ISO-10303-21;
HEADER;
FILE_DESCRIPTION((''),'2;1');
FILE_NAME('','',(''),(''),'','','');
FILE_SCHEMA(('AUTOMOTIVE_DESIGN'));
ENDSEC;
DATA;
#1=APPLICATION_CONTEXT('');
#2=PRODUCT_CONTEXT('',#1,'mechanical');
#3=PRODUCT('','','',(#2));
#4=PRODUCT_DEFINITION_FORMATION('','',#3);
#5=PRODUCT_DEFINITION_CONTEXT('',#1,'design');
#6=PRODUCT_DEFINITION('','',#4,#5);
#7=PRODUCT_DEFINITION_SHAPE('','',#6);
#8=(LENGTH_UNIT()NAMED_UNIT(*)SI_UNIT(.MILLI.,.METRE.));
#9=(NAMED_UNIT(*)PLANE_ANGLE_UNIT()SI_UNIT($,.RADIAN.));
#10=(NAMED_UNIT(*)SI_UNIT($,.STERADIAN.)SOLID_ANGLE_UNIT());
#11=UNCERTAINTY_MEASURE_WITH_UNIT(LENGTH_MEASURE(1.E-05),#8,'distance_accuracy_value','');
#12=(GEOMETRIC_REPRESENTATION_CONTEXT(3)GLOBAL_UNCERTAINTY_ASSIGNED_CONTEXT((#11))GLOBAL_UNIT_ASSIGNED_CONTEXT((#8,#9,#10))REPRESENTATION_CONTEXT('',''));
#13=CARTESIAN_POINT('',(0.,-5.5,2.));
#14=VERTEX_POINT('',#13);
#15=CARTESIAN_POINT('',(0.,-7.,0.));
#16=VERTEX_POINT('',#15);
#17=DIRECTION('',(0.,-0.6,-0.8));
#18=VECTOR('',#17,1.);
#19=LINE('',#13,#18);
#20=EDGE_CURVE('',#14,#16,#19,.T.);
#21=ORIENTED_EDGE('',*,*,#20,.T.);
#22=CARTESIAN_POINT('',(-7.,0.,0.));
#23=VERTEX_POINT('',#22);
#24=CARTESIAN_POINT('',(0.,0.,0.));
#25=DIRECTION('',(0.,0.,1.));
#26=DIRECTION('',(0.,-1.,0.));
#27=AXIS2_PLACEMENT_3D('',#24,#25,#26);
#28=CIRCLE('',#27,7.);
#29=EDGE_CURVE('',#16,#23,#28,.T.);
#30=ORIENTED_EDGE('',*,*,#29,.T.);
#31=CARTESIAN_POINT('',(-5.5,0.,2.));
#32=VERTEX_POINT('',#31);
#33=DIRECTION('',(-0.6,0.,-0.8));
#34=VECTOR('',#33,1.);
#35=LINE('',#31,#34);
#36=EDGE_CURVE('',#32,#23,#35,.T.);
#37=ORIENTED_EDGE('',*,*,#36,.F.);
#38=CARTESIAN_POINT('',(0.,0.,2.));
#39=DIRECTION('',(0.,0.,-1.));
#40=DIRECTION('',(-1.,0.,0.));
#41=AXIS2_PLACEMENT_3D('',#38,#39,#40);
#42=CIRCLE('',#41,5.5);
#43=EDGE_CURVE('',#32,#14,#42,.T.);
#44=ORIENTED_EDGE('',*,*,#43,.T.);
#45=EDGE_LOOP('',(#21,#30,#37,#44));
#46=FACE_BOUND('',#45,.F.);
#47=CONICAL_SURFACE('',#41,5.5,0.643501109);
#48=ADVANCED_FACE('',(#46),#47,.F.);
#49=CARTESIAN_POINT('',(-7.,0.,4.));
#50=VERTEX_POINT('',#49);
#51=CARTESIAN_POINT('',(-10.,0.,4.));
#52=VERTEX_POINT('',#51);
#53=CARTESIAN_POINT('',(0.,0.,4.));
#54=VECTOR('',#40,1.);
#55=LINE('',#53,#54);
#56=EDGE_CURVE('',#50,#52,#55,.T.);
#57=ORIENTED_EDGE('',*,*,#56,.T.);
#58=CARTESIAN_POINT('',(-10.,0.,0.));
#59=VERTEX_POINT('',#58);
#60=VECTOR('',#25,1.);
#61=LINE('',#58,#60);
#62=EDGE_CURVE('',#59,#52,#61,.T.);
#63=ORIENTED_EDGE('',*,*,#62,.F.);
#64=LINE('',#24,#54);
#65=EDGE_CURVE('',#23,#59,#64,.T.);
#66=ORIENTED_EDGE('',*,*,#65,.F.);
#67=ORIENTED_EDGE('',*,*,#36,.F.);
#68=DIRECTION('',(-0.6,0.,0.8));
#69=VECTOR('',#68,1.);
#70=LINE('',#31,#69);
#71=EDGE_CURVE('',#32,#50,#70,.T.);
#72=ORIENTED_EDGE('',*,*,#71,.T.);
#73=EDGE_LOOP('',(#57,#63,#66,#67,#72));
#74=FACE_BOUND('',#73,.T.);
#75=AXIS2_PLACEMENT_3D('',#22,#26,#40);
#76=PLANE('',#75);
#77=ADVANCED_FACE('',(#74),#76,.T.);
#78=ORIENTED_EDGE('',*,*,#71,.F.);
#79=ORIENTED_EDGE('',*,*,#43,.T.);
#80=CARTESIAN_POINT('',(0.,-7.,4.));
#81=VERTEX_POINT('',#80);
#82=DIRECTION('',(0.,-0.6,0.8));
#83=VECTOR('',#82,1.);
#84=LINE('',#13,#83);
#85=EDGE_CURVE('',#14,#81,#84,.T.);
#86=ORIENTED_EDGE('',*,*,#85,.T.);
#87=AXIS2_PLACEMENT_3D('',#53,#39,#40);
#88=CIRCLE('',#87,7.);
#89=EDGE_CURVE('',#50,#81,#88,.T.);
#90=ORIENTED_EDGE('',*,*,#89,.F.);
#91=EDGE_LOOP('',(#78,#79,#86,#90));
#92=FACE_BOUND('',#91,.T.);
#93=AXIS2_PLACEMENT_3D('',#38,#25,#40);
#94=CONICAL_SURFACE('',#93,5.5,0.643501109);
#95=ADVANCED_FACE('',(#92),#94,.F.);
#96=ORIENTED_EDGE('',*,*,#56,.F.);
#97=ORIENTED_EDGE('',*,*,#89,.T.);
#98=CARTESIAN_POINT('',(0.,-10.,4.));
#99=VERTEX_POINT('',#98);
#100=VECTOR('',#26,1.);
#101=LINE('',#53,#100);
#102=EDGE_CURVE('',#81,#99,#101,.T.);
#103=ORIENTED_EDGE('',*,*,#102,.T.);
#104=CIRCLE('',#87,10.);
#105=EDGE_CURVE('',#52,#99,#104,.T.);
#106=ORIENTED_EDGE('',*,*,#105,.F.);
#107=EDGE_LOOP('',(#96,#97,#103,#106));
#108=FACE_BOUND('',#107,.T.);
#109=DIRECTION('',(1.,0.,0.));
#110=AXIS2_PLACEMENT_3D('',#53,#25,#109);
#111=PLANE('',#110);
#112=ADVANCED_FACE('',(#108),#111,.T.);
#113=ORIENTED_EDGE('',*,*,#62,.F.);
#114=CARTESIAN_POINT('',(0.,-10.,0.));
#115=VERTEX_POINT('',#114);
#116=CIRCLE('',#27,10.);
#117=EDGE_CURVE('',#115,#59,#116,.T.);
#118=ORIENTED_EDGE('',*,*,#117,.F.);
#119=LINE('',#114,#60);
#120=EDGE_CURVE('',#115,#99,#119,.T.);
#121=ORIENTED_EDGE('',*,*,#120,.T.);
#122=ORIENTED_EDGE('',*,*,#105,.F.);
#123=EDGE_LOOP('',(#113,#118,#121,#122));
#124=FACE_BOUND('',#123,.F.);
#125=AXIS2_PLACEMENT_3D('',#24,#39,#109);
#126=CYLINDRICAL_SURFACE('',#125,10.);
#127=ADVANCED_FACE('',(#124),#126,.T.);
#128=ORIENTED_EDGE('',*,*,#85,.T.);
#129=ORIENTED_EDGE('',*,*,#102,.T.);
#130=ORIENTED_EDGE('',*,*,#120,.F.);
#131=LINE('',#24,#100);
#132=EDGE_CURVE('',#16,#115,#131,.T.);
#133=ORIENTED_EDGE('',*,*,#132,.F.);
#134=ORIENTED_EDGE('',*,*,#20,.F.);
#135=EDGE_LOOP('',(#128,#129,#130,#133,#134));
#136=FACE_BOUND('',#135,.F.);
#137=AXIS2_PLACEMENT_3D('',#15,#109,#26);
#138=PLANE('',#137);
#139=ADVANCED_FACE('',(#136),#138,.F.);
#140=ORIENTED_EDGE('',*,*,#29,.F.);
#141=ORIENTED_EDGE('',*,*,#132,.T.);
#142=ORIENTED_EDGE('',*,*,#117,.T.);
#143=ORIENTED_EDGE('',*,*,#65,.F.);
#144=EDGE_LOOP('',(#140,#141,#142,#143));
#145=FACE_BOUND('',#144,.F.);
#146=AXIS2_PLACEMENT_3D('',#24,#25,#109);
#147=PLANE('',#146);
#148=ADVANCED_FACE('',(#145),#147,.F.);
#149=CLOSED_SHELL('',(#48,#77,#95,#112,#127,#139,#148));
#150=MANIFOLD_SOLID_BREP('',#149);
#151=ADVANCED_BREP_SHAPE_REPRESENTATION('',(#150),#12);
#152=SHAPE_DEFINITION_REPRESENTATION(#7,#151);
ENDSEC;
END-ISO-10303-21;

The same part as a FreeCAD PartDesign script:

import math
import FreeCAD as App
import Part
import Sketcher
from FreeCAD import Vector


def add_polygon(sketch, points):
    """Adds a closed chain of lines whose ends are joined by coincident constraints."""
    first, n = sketch.GeometryCount, len(points)
    for a, b in zip(points, points[1:] + points[:1]):
        sketch.addGeometry(Part.LineSegment(App.Vector(*a, 0), App.Vector(*b, 0)), False)
    for i in range(n):
        sketch.addConstraint(Sketcher.Constraint("Coincident", first + i, 2, first + (i + 1) % n, 1))

doc = App.newDocument("Part")
body = doc.addObject("PartDesign::Body", "Body")

# Sketch on XY plane
sketch1 = body.newObject("Sketcher::SketchObject", "Sketch")
sketch1.AttachmentSupport = (doc.getObject("XY_Plane"), [""])
sketch1.MapMode = "FlatFace"
sketch1.addGeometry([
    Part.ArcOfCircle(Part.Circle(Vector(0, 0, 0), Vector(0, 0, 1), 7), math.radians(-90), math.radians(180)),
    Part.LineSegment(Vector(0, -7, 0), Vector(0, -10, 0)),
    Part.ArcOfCircle(Part.Circle(Vector(0, 0, 0), Vector(0, 0, 1), 10), math.radians(-90), math.radians(180)),
    Part.LineSegment(Vector(-10, 0, 0), Vector(-7, 0, 0)),
], False)
sketch1.addConstraint([
    Sketcher.Constraint("Coincident", 0, 1, 1, 1),
    Sketcher.Constraint("Coincident", 1, 2, 2, 1),
    Sketcher.Constraint("Coincident", 2, 2, 3, 1),
    Sketcher.Constraint("Coincident", 3, 2, 0, 2),
    Sketcher.Constraint("Vertical", 1),
    Sketcher.Constraint("Horizontal", 3),
    Sketcher.Constraint("Coincident", 0, 3, -1, 1),
    Sketcher.Constraint("Coincident", 2, 3, -1, 1),
    Sketcher.Constraint("PointOnObject", 0, 1, -2),
    Sketcher.Constraint("PointOnObject", 2, 2, -1),
    Sketcher.Constraint("Radius", 0, 7.0),
    Sketcher.Constraint("Radius", 2, 10.0),
])
pad1 = body.newObject("PartDesign::Pad", "Pad")
pad1.Profile = sketch1
pad1.Length = 4

# Sketch on XZ plane
sketch2 = body.newObject("Sketcher::SketchObject", "Sketch001")
sketch2.AttachmentSupport = (doc.getObject("XZ_Plane"), [""])
sketch2.MapMode = "FlatFace"
add_polygon(sketch2, [(-7, 0), (-5.5, 2), (-7, 4)])  # lines 0-2
sketch2.addConstraint([
    Sketcher.Constraint("Vertical", 2),
    Sketcher.Constraint("PointOnObject", 2, 2, -1),
    Sketcher.Constraint("Equal", 0, 1),
    Sketcher.Constraint("DistanceX", 1, 2, 0, 2, 1.5),
    Sketcher.Constraint("DistanceY", 2, 2, 2, 1, 4.0),
    Sketcher.Constraint("DistanceX", 1, 2, -1, 1, 7.0),
])
revolution = body.newObject("PartDesign::Revolution", "Revolution")
revolution.Profile = sketch2
revolution.ReferenceAxis = (sketch2, ["V_Axis"])
revolution.Angle = 270
revolution.Reversed = True

doc.recompute()
